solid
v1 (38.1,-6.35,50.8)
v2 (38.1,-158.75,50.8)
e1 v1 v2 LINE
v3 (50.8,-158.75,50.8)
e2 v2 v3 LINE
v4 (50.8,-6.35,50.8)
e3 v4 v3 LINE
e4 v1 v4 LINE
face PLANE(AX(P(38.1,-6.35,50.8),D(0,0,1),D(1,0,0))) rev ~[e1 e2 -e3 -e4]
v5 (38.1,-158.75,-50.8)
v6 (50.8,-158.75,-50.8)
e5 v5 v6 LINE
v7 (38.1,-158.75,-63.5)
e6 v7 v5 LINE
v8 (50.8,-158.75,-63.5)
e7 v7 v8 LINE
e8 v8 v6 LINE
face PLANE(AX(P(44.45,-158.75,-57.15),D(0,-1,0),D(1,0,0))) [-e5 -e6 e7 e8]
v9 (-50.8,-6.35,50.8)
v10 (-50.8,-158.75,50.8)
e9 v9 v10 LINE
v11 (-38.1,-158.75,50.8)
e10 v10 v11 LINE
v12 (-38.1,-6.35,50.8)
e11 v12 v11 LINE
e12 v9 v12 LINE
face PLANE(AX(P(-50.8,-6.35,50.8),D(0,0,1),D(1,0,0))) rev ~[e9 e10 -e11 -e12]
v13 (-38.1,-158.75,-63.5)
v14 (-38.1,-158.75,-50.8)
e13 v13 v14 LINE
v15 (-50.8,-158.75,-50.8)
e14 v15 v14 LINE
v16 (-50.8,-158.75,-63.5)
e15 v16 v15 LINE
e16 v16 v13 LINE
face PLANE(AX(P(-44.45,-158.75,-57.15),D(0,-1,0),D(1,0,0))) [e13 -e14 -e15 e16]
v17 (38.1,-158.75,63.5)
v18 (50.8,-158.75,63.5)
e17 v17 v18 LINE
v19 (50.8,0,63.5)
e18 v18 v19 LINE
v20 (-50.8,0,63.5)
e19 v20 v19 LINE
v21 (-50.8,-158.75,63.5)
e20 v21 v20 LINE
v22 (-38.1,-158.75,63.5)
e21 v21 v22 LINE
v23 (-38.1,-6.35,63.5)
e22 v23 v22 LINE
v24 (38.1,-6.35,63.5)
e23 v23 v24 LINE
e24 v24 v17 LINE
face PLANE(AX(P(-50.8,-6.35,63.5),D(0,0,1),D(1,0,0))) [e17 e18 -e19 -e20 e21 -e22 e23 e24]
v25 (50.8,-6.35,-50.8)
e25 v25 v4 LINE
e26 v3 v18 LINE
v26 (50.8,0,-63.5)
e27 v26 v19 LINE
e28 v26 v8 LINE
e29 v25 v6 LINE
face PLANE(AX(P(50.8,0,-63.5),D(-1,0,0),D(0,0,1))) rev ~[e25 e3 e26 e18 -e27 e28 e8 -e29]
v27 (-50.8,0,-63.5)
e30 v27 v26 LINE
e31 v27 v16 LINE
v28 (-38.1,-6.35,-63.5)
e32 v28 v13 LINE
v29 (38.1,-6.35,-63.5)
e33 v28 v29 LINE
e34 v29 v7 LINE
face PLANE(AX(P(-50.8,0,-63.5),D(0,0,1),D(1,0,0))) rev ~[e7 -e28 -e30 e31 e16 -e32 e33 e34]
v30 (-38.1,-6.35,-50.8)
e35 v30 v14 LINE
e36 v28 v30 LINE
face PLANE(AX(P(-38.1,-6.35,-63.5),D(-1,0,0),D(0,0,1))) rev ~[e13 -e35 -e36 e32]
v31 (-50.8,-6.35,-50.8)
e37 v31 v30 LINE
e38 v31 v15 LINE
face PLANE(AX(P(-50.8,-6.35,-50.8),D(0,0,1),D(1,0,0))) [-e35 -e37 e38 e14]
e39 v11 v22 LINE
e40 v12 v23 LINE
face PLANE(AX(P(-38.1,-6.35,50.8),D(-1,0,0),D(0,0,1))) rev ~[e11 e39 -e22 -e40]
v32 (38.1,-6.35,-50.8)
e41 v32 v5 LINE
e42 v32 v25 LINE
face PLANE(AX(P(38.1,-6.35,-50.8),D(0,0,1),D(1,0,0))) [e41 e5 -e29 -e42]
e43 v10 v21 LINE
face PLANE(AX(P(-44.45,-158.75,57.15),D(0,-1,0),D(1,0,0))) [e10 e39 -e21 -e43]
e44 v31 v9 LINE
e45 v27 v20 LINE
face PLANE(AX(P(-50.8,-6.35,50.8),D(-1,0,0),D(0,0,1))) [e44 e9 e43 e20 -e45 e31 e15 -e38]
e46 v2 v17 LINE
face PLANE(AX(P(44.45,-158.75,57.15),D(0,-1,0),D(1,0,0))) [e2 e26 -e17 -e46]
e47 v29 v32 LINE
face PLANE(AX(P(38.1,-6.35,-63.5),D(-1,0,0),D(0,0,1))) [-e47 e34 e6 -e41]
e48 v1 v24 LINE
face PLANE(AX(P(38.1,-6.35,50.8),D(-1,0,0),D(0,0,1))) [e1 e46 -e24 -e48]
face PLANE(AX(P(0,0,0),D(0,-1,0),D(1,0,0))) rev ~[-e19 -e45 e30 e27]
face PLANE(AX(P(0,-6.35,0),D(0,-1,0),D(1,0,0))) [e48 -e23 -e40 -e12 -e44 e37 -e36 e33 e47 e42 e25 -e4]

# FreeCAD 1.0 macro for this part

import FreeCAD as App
import Part
import Sketcher
from FreeCAD import Vector
Q = App.Units.Quantity


def add_polygon(sketch, points):
    """Adds a closed chain of lines whose ends are joined by coincident constraints."""
    first, n = sketch.GeometryCount, len(points)
    for a, b in zip(points, points[1:] + points[:1]):
        sketch.addGeometry(Part.LineSegment(App.Vector(*a, 0), App.Vector(*b, 0)), False)
    for i in range(n):
        sketch.addConstraint(Sketcher.Constraint("Coincident", first + i, 2, first + (i + 1) % n, 1))

doc = App.newDocument("Part")
body = doc.addObject("PartDesign::Body", "Body")

# Sketch on XZ plane
sketch1 = body.newObject("Sketcher::SketchObject", "Sketch")
sketch1.AttachmentSupport = (doc.getObject("XZ_Plane"), [""])
sketch1.MapMode = "FlatFace"
add_polygon(sketch1, [(-51, 64), (-51, -64), (51, -64), (51, 64)])  # lines 0-3
sketch1.addConstraint(Sketcher.Constraint("Vertical", 0))
sketch1.addConstraint(Sketcher.Constraint("Horizontal", 1))
sketch1.addConstraint(Sketcher.Constraint("Vertical", 2))
sketch1.addConstraint(Sketcher.Constraint("Horizontal", 3))
sketch1.addConstraint(Sketcher.Constraint("Symmetric", 0, 2, 2, 2, -1, 1))
sketch1.addConstraint(Sketcher.Constraint("DistanceX", 1, 1, 1, 2, Q("4 in")))
sketch1.addConstraint(Sketcher.Constraint("DistanceY", 0, 2, 0, 1, Q("5 in")))
pad1 = body.newObject("PartDesign::Pad", "Pad")
pad1.Profile = sketch1
pad1.Length = Q("0.25 in")

# Sketch on XZ plane
sketch2 = body.newObject("Sketcher::SketchObject", "Sketch001")
sketch2.AttachmentSupport = (doc.getObject("XZ_Plane"), [""])
sketch2.MapMode = "FlatFace"
sketch2.AttachmentOffset = App.Placement(Vector(0, 0, 0.25 * 25.4), App.Rotation())
add_polygon(sketch2, [(-51, 64), (-51, 51), (-38, 51), (-38, 64)])  # lines 0-3
add_polygon(sketch2, [(-51, -51), (-51, -64), (-38, -64), (-38, -51)])  # lines 4-7
add_polygon(sketch2, [(38, -51), (38, -64), (51, -64), (51, -51)])  # lines 8-11
add_polygon(sketch2, [(38, 64), (38, 51), (51, 51), (51, 64)])  # lines 12-15
sketch2.addConstraint(Sketcher.Constraint("Vertical", 0))
sketch2.addConstraint(Sketcher.Constraint("Horizontal", 1))
sketch2.addConstraint(Sketcher.Constraint("Vertical", 2))
sketch2.addConstraint(Sketcher.Constraint("Horizontal", 3))
sketch2.addConstraint(Sketcher.Constraint("Vertical", 4))
sketch2.addConstraint(Sketcher.Constraint("Horizontal", 5))
sketch2.addConstraint(Sketcher.Constraint("Vertical", 6))
sketch2.addConstraint(Sketcher.Constraint("Horizontal", 7))
sketch2.addConstraint(Sketcher.Constraint("Vertical", 8))
sketch2.addConstraint(Sketcher.Constraint("Horizontal", 9))
sketch2.addConstraint(Sketcher.Constraint("Vertical", 10))
sketch2.addConstraint(Sketcher.Constraint("Horizontal", 11))
sketch2.addConstraint(Sketcher.Constraint("Vertical", 12))
sketch2.addConstraint(Sketcher.Constraint("Horizontal", 13))
sketch2.addConstraint(Sketcher.Constraint("Vertical", 14))
sketch2.addConstraint(Sketcher.Constraint("Horizontal", 15))
sketch2.addConstraint(Sketcher.Constraint("Symmetric", 2, 2, 8, 2, -1, 1))
sketch2.addConstraint(Sketcher.Constraint("Symmetric", 0, 2, 10, 2, -1, 1))
sketch2.addConstraint(Sketcher.Constraint("Symmetric", 6, 2, 12, 2, -1, 1))
sketch2.addConstraint(Sketcher.Constraint("Symmetric", 4, 2, 14, 2, -1, 1))
sketch2.addConstraint(Sketcher.Constraint("Symmetric", 5, 2, 8, 2, -2))
sketch2.addConstraint(Sketcher.Constraint("Symmetric", 7, 2, 10, 2, -2))
sketch2.addConstraint(Sketcher.Constraint("Equal", 15, 0))
sketch2.addConstraint(Sketcher.Constraint("DistanceX", 1, 1, 1, 2, Q("0.5 in")))
sketch2.addConstraint(Sketcher.Constraint("DistanceX", 0, 2, -1, 1, Q("2 in")))
sketch2.addConstraint(Sketcher.Constraint("DistanceY", -1, 1, 0, 2, Q("2 in")))
pad2 = body.newObject("PartDesign::Pad", "Pad001")
pad2.Profile = sketch2
pad2.Length = Q("6 in")

doc.recompute()
